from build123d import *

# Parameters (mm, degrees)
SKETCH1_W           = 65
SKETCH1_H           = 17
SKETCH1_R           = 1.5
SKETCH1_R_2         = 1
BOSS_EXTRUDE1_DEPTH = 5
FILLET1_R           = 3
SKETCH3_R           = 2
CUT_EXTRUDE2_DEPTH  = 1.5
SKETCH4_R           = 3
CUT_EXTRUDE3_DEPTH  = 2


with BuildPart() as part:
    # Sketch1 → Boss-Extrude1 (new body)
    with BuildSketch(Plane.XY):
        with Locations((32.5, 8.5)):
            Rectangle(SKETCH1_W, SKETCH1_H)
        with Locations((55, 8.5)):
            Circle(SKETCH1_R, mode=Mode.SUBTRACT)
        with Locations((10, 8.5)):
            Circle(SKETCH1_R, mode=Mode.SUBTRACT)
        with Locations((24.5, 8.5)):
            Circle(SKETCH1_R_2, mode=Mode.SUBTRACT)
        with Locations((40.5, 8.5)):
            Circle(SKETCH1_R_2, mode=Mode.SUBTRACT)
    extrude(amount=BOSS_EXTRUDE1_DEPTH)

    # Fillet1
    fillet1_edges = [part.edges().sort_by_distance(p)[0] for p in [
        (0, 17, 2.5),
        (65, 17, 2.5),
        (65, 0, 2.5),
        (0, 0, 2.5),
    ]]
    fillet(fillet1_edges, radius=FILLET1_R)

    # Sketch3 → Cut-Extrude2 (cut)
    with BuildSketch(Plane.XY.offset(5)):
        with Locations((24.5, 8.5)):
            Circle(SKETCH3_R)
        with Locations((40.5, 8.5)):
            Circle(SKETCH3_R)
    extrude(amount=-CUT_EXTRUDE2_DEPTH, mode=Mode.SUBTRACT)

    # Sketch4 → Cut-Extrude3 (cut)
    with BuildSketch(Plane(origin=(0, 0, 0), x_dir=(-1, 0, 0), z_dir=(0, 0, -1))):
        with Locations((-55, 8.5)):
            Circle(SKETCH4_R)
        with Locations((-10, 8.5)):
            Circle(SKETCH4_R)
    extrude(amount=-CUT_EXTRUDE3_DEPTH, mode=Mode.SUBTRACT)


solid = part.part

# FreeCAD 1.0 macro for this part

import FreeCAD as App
import Part
import Sketcher
Q = App.Units.Quantity


def edges_at(feature, points):
    """Names of the edges that pass closest to the given points."""
    edges = feature.Shape.Edges
    near = lambda p: min(range(len(edges)), key=lambda i: edges[i].distToShape(Part.Vertex(*p))[0])
    return sorted({f"Edge{near(p) + 1}" for p in points})

doc = App.newDocument("Part")
body = doc.addObject("PartDesign::Body", "Body")

# Sketch on XY plane
sketch1 = doc.addObject("Sketcher::SketchObject", "Sketch")
body.addObject(sketch1)
sketch1.AttachmentSupport = (doc.XY_Plane, [""])
sketch1.MapMode = "FlatFace"
sketch1.addGeometry([
    Part.LineSegment(App.Vector(0, 17, 0), App.Vector(0, 0, 0)),  # 0
    Part.LineSegment(App.Vector(0, 0, 0), App.Vector(65, 0, 0)),  # 1
    Part.LineSegment(App.Vector(65, 0, 0), App.Vector(65, 17, 0)),  # 2
    Part.LineSegment(App.Vector(65, 17, 0), App.Vector(0, 17, 0)),  # 3
    Part.Circle(App.Vector(10, 8.5, 0), App.Vector(0, 0, 1), 1.5),  # 4
    Part.Circle(App.Vector(24.5, 8.5, 0), App.Vector(0, 0, 1), 1),  # 5
    Part.Circle(App.Vector(40.5, 8.5, 0), App.Vector(0, 0, 1), 1),  # 6
    Part.Circle(App.Vector(55, 8.5, 0), App.Vector(0, 0, 1), 1.5),  # 7
], False)
sketch1.addConstraint([
    Sketcher.Constraint("Coincident", 0, 2, 1, 1),
    Sketcher.Constraint("Coincident", 1, 2, 2, 1),
    Sketcher.Constraint("Coincident", 2, 2, 3, 1),
    Sketcher.Constraint("Coincident", 3, 2, 0, 1),
    Sketcher.Constraint("Vertical", 0),
    Sketcher.Constraint("Horizontal", 1),
    Sketcher.Constraint("Vertical", 2),
    Sketcher.Constraint("Horizontal", 3),
    Sketcher.Constraint("Coincident", 0, 2, -1, 1),
    Sketcher.Constraint("Equal", 5, 6),
    Sketcher.Constraint("Equal", 4, 7),
    Sketcher.Constraint("Horizontal", 4, 3, 5, 3),
    Sketcher.Constraint("Horizontal", 5, 3, 6, 3),
    Sketcher.Constraint("Horizontal", 6, 3, 7, 3),
    Sketcher.Constraint("Diameter", 4, Q("3 mm")),
    Sketcher.Constraint("Diameter", 5, Q("2 mm")),
    Sketcher.Constraint("DistanceX", 1, 1, 1, 2, Q("65 mm")),
    Sketcher.Constraint("DistanceY", 0, 2, 0, 1, Q("17 mm")),
    Sketcher.Constraint("DistanceX", -1, 1, 4, 3, Q("10 mm")),
    Sketcher.Constraint("DistanceX", -1, 1, 7, 3, Q("55 mm")),
    Sketcher.Constraint("DistanceX", 5, 3, 6, 3, Q("16 mm")),
    Sketcher.Constraint("DistanceY", -1, 1, 4, 3, Q("8.5 mm")),
    Sketcher.Constraint("DistanceX", -1, 1, 5, 3, Q("24.5 mm")),
])
pad1 = doc.addObject("PartDesign::Pad", "Pad")
body.addObject(pad1)
pad1.Profile = sketch1
pad1.Length = 5
doc.recompute()

fillet = doc.addObject("PartDesign::Fillet", "Fillet")
body.addObject(fillet)
fillet.Base = (pad1, edges_at(pad1, [
    (0, 17, 2.5),
    (65, 17, 2.5),
    (65, 0, 2.5),
    (0, 0, 2.5),
]))
fillet.Radius = 3

# Sketch on XY plane
sketch2 = doc.addObject("Sketcher::SketchObject", "Sketch001")
body.addObject(sketch2)
sketch2.AttachmentSupport = (doc.XY_Plane, [""])
sketch2.MapMode = "FlatFace"
sketch2.AttachmentOffset = App.Placement(App.Vector(0, 0, 5), App.Rotation())
sketch2.addGeometry([
    Part.Circle(App.Vector(24.5, 8.5, 0), App.Vector(0, 0, 1), 2),
    Part.Circle(App.Vector(40.5, 8.5, 0), App.Vector(0, 0, 1), 2),
], False)
sketch2.addConstraint([
    Sketcher.Constraint("Equal", 0, 1),
    Sketcher.Constraint("Horizontal", 0, 3, 1, 3),
    Sketcher.Constraint("Diameter", 0, Q("4 mm")),
    Sketcher.Constraint("DistanceX", 0, 3, 1, 3, Q("16 mm")),
    Sketcher.Constraint("DistanceX", -1, 1, 0, 3, Q("24.5 mm")),
    Sketcher.Constraint("DistanceY", -1, 1, 0, 3, Q("8.5 mm")),
])
pocket1 = doc.addObject("PartDesign::Pocket", "Pocket")
body.addObject(pocket1)
pocket1.Profile = sketch2
pocket1.Length = 1.5

# Sketch on XY plane
sketch3 = doc.addObject("Sketcher::SketchObject", "Sketch002")
body.addObject(sketch3)
sketch3.AttachmentSupport = (doc.XY_Plane, [""])
sketch3.MapMode = "FlatFace"
sketch3.addGeometry([
    Part.Circle(App.Vector(55, 8.5, 0), App.Vector(0, 0, 1), 3),
    Part.Circle(App.Vector(10, 8.5, 0), App.Vector(0, 0, 1), 3),
], False)
sketch3.addConstraint([
    Sketcher.Constraint("Equal", 0, 1),
    Sketcher.Constraint("Horizontal", 0, 3, 1, 3),
    Sketcher.Constraint("Diameter", 0, Q("6 mm")),
    Sketcher.Constraint("DistanceX", -1, 1, 0, 3, Q("55 mm")),
    Sketcher.Constraint("DistanceX", -1, 1, 1, 3, Q("10 mm")),
    Sketcher.Constraint("DistanceY", -1, 1, 0, 3, Q("8.5 mm")),
])
pocket2 = doc.addObject("PartDesign::Pocket", "Pocket001")
body.addObject(pocket2)
pocket2.Profile = sketch3
pocket2.Length = 2
pocket2.Reversed = True

doc.recompute()
